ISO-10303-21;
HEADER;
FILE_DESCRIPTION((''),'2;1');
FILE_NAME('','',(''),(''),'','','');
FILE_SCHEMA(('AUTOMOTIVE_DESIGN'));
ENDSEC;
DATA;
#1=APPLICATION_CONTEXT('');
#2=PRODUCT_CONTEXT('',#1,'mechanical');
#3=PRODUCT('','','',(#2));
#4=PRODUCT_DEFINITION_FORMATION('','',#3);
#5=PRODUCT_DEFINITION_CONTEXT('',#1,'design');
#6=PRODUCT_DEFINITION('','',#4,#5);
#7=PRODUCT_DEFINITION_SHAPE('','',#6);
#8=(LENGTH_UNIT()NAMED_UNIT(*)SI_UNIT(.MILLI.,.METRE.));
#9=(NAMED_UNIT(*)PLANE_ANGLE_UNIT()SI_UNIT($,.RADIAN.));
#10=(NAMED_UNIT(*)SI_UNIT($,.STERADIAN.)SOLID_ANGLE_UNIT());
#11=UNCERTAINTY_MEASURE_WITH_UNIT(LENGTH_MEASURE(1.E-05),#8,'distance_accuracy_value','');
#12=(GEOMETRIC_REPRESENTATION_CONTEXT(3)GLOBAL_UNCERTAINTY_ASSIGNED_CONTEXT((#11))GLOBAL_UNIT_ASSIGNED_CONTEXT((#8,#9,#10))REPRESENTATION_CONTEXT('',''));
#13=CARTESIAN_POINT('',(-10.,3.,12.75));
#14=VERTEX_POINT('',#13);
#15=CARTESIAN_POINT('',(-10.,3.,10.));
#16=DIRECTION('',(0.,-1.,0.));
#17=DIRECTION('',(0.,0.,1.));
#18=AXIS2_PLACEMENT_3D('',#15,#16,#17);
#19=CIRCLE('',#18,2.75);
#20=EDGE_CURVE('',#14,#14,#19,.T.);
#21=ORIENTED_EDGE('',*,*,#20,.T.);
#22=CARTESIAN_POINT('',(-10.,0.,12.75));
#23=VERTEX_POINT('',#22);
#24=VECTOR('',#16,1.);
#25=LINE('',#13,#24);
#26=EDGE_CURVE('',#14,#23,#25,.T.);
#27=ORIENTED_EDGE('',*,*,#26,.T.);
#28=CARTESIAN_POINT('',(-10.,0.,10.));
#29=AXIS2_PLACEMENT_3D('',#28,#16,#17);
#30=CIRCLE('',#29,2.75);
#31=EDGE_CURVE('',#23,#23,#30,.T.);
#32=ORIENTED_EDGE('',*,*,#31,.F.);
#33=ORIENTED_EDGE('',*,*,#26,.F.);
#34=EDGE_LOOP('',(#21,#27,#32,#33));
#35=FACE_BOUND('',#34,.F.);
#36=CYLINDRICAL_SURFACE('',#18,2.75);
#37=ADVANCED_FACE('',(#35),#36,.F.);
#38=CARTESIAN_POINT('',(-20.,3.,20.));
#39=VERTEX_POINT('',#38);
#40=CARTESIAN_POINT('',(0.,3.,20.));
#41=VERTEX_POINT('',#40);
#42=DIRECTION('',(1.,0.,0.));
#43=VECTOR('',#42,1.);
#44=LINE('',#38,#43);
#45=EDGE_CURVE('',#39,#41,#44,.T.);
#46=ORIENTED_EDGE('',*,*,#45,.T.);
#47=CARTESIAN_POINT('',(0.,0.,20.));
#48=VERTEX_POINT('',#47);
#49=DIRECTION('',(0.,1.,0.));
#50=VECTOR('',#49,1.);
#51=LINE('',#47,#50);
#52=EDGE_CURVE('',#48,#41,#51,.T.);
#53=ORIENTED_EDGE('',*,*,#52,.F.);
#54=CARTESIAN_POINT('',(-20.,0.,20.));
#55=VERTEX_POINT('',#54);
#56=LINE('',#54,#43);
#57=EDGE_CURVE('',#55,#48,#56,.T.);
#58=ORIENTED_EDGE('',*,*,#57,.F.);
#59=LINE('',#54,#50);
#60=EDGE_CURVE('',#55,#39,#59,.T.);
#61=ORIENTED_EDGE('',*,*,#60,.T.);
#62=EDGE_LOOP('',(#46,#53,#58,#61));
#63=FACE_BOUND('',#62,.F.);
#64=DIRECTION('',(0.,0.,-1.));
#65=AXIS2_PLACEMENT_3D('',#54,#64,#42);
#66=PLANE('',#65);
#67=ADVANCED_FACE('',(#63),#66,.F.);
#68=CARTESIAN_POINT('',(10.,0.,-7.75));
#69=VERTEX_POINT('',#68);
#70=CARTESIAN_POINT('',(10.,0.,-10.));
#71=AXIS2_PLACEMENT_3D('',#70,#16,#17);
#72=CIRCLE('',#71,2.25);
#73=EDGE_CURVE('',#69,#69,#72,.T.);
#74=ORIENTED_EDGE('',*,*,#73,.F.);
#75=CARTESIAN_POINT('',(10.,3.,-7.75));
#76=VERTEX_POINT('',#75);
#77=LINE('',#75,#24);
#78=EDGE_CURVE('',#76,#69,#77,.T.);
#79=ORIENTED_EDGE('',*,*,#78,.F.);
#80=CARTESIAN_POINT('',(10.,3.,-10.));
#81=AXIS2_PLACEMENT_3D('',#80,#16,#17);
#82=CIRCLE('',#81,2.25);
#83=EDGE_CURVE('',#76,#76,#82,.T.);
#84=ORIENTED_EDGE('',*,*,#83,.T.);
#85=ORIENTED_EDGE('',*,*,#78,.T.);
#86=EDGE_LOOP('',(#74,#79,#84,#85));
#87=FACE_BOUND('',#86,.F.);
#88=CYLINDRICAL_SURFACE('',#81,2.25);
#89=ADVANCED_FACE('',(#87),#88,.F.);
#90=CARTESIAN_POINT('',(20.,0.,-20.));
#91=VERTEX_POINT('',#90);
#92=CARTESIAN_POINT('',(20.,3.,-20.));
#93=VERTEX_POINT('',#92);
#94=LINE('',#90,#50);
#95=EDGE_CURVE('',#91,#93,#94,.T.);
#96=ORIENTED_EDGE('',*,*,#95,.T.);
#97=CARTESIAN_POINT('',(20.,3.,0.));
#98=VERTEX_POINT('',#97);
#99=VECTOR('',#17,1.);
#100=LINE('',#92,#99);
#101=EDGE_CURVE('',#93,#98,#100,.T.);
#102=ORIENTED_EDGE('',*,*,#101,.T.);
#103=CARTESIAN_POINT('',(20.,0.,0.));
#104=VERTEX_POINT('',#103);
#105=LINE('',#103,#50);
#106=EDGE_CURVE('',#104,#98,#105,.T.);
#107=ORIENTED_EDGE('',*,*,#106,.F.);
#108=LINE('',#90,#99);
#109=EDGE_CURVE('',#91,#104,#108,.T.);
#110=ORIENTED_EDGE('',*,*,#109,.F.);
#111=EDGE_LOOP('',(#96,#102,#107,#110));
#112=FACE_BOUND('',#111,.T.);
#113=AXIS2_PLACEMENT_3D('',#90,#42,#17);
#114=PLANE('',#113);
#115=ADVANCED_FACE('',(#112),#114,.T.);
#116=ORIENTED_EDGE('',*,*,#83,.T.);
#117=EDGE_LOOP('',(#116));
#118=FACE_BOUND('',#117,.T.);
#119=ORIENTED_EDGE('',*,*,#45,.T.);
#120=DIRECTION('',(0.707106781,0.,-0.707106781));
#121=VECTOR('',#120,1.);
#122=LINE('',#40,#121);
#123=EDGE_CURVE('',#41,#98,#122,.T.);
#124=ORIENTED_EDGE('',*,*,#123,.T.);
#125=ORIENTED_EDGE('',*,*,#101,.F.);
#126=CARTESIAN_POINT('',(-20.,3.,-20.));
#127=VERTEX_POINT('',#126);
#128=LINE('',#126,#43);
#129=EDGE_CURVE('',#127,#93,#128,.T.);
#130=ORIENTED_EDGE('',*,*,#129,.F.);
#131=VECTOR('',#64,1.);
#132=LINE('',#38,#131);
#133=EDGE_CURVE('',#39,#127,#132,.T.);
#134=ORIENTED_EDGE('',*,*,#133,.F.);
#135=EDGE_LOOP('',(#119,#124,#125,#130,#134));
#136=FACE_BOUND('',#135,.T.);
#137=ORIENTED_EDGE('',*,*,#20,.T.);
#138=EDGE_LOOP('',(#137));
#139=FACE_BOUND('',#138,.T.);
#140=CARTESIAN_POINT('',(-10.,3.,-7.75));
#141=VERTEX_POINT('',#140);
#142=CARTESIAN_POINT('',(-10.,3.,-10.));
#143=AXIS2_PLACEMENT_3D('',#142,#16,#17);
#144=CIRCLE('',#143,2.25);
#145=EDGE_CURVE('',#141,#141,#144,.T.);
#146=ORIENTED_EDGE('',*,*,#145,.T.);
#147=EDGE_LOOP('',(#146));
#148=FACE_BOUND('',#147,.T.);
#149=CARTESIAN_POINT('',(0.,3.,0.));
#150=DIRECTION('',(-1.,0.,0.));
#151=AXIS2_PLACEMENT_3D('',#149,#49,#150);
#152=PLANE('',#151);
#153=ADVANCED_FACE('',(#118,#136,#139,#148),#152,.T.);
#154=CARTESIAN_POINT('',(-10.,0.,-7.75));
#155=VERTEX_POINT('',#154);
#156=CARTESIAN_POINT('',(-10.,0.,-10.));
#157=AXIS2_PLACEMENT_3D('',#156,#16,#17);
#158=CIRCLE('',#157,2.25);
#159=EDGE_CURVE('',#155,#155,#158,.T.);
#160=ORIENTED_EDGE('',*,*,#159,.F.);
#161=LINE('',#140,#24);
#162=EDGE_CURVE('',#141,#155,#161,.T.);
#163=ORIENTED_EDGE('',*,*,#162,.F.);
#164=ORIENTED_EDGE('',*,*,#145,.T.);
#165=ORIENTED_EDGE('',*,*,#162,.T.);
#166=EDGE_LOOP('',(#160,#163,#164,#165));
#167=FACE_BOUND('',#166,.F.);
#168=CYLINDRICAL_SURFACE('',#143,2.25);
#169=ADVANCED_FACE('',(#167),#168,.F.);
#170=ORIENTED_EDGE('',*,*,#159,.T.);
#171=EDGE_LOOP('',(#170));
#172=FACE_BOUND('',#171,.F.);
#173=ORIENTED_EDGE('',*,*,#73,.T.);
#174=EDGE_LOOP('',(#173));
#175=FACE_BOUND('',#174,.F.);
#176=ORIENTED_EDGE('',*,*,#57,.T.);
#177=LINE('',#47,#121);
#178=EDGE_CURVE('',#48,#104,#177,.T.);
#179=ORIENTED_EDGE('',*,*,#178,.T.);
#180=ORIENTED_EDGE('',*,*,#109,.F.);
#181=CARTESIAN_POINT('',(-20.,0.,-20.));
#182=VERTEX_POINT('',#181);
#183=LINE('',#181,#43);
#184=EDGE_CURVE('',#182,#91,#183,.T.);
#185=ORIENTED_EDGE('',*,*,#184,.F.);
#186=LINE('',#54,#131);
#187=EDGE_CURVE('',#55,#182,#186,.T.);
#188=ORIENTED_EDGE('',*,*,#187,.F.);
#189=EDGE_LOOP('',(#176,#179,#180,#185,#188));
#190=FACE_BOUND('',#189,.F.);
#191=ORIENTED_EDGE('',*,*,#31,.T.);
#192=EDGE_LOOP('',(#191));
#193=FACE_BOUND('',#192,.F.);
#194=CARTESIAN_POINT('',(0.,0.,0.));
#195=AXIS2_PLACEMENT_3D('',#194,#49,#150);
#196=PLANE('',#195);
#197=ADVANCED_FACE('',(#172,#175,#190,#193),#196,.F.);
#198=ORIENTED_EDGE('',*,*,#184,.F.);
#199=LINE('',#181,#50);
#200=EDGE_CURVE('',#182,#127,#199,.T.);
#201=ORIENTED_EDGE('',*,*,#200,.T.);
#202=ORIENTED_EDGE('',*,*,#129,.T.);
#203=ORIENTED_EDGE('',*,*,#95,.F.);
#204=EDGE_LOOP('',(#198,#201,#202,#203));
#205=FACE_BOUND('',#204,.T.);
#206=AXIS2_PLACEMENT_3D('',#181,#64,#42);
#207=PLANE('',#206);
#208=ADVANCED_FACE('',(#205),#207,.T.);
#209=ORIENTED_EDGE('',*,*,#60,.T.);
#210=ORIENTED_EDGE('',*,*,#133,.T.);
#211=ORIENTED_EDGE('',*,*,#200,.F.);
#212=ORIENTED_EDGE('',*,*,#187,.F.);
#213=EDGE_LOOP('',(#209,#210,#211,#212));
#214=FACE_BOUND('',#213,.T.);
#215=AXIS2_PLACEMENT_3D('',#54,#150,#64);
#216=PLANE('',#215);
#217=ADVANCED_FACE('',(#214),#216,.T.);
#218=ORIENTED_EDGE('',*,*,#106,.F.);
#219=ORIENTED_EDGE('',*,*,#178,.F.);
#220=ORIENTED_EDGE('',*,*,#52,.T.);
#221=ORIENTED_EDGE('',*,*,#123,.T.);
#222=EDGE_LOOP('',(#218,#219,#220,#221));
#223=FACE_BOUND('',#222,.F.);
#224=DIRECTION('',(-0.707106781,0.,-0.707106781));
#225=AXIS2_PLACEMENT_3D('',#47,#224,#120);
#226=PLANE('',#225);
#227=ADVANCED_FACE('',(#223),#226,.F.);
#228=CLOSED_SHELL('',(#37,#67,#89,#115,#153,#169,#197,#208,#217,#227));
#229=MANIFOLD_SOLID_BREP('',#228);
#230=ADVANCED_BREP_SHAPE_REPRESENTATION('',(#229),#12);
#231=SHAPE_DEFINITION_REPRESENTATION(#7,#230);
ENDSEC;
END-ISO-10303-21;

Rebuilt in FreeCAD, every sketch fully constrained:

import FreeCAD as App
import Part
import Sketcher
Q = App.Units.Quantity

doc = App.newDocument("Part")
body = doc.addObject("PartDesign::Body", "Body")

# Sketch on XZ plane
sketch1 = doc.addObject("Sketcher::SketchObject", "Sketch")
body.addObject(sketch1)
sketch1.AttachmentSupport = (doc.XZ_Plane, [""])
sketch1.MapMode = "FlatFace"
sketch1.addGeometry(Part.LineSegment(App.Vector(-20, -20, 0), App.Vector(-20, 20, 0)), False)
sketch1.addGeometry(Part.LineSegment(App.Vector(-20, 20, 0), App.Vector(0, 20, 0)), False)
sketch1.addGeometry(Part.LineSegment(App.Vector(0, 20, 0), App.Vector(20, 0, 0)), False)
sketch1.addGeometry(Part.LineSegment(App.Vector(20, 0, 0), App.Vector(20, -20, 0)), False)
sketch1.addGeometry(Part.LineSegment(App.Vector(20, -20, 0), App.Vector(-20, -20, 0)), False)
sketch1.addConstraint(Sketcher.Constraint("Coincident", 0, 2, 1, 1))
sketch1.addConstraint(Sketcher.Constraint("Coincident", 1, 2, 2, 1))
sketch1.addConstraint(Sketcher.Constraint("Coincident", 2, 2, 3, 1))
sketch1.addConstraint(Sketcher.Constraint("Coincident", 3, 2, 4, 1))
sketch1.addConstraint(Sketcher.Constraint("Coincident", 4, 2, 0, 1))
sketch1.addConstraint(Sketcher.Constraint("Vertical", 0))
sketch1.addConstraint(Sketcher.Constraint("Horizontal", 1))
sketch1.addConstraint(Sketcher.Constraint("Vertical", 3))
sketch1.addConstraint(Sketcher.Constraint("Horizontal", 4))
sketch1.addConstraint(Sketcher.Constraint("Symmetric", 0, 2, 3, 2, -1, 1))
sketch1.addConstraint(Sketcher.Constraint("PointOnObject", 1, 2, -2))
sketch1.addConstraint(Sketcher.Constraint("PointOnObject", 2, 2, -1))
sketch1.addConstraint(Sketcher.Constraint("Equal", 4, 0))
sketch1.addConstraint(Sketcher.Constraint("DistanceX", 1, 1, 1, 2, Q("20 mm")))
pad1 = doc.addObject("PartDesign::Pad", "Pad")
body.addObject(pad1)
pad1.Profile = sketch1
pad1.Length = 3
pad1.Reversed = True

# Sketch on XZ plane
sketch2 = doc.addObject("Sketcher::SketchObject", "Sketch001")
body.addObject(sketch2)
sketch2.AttachmentSupport = (doc.XZ_Plane, [""])
sketch2.MapMode = "FlatFace"
sketch2.AttachmentOffset = App.Placement(App.Vector(0, 0, -3), App.Rotation())
sketch2.addGeometry(Part.Circle(App.Vector(-10, -10, 0), App.Vector(0, 0, 1), 2.25), False)
sketch2.addGeometry(Part.Circle(App.Vector(10, -10, 0), App.Vector(0, 0, 1), 2.25), False)
sketch2.addConstraint(Sketcher.Constraint("Equal", 0, 1))
sketch2.addConstraint(Sketcher.Constraint("Symmetric", 0, 3, 1, 3, -2))
sketch2.addConstraint(Sketcher.Constraint("Diameter", 0, Q("4.5 mm")))
sketch2.addConstraint(Sketcher.Constraint("DistanceX", 0, 3, -1, 1, Q("10 mm")))
sketch2.addConstraint(Sketcher.Constraint("DistanceY", 0, 3, -1, 1, Q("10 mm")))
doc.recompute()
hole = doc.addObject("PartDesign::Hole", "Hole")
body.addObject(hole)
hole.Profile = sketch2
hole.ThreadType = "None"
hole.Diameter = 4.5
hole.DepthType = "ThroughAll"
hole.Reversed = True

# Sketch on XZ plane
sketch3 = doc.addObject("Sketcher::SketchObject", "Sketch002")
body.addObject(sketch3)
sketch3.AttachmentSupport = (doc.XZ_Plane, [""])
sketch3.MapMode = "FlatFace"
sketch3.AttachmentOffset = App.Placement(App.Vector(0, 0, -3), App.Rotation())
sketch3.addGeometry(Part.Circle(App.Vector(-10, 10, 0), App.Vector(0, 0, 1), 2.75), False)
sketch3.addConstraint(Sketcher.Constraint("Diameter", 0, Q("5.5 mm")))
sketch3.addConstraint(Sketcher.Constraint("DistanceX", 0, 3, -1, 1, Q("10 mm")))
sketch3.addConstraint(Sketcher.Constraint("DistanceY", -1, 1, 0, 3, Q("10 mm")))
doc.recompute()
hole2 = doc.addObject("PartDesign::Hole", "Hole001")
body.addObject(hole2)
hole2.Profile = sketch3
hole2.ThreadType = "None"
hole2.Diameter = 5.5
hole2.DepthType = "ThroughAll"
hole2.Reversed = True

doc.recompute()
